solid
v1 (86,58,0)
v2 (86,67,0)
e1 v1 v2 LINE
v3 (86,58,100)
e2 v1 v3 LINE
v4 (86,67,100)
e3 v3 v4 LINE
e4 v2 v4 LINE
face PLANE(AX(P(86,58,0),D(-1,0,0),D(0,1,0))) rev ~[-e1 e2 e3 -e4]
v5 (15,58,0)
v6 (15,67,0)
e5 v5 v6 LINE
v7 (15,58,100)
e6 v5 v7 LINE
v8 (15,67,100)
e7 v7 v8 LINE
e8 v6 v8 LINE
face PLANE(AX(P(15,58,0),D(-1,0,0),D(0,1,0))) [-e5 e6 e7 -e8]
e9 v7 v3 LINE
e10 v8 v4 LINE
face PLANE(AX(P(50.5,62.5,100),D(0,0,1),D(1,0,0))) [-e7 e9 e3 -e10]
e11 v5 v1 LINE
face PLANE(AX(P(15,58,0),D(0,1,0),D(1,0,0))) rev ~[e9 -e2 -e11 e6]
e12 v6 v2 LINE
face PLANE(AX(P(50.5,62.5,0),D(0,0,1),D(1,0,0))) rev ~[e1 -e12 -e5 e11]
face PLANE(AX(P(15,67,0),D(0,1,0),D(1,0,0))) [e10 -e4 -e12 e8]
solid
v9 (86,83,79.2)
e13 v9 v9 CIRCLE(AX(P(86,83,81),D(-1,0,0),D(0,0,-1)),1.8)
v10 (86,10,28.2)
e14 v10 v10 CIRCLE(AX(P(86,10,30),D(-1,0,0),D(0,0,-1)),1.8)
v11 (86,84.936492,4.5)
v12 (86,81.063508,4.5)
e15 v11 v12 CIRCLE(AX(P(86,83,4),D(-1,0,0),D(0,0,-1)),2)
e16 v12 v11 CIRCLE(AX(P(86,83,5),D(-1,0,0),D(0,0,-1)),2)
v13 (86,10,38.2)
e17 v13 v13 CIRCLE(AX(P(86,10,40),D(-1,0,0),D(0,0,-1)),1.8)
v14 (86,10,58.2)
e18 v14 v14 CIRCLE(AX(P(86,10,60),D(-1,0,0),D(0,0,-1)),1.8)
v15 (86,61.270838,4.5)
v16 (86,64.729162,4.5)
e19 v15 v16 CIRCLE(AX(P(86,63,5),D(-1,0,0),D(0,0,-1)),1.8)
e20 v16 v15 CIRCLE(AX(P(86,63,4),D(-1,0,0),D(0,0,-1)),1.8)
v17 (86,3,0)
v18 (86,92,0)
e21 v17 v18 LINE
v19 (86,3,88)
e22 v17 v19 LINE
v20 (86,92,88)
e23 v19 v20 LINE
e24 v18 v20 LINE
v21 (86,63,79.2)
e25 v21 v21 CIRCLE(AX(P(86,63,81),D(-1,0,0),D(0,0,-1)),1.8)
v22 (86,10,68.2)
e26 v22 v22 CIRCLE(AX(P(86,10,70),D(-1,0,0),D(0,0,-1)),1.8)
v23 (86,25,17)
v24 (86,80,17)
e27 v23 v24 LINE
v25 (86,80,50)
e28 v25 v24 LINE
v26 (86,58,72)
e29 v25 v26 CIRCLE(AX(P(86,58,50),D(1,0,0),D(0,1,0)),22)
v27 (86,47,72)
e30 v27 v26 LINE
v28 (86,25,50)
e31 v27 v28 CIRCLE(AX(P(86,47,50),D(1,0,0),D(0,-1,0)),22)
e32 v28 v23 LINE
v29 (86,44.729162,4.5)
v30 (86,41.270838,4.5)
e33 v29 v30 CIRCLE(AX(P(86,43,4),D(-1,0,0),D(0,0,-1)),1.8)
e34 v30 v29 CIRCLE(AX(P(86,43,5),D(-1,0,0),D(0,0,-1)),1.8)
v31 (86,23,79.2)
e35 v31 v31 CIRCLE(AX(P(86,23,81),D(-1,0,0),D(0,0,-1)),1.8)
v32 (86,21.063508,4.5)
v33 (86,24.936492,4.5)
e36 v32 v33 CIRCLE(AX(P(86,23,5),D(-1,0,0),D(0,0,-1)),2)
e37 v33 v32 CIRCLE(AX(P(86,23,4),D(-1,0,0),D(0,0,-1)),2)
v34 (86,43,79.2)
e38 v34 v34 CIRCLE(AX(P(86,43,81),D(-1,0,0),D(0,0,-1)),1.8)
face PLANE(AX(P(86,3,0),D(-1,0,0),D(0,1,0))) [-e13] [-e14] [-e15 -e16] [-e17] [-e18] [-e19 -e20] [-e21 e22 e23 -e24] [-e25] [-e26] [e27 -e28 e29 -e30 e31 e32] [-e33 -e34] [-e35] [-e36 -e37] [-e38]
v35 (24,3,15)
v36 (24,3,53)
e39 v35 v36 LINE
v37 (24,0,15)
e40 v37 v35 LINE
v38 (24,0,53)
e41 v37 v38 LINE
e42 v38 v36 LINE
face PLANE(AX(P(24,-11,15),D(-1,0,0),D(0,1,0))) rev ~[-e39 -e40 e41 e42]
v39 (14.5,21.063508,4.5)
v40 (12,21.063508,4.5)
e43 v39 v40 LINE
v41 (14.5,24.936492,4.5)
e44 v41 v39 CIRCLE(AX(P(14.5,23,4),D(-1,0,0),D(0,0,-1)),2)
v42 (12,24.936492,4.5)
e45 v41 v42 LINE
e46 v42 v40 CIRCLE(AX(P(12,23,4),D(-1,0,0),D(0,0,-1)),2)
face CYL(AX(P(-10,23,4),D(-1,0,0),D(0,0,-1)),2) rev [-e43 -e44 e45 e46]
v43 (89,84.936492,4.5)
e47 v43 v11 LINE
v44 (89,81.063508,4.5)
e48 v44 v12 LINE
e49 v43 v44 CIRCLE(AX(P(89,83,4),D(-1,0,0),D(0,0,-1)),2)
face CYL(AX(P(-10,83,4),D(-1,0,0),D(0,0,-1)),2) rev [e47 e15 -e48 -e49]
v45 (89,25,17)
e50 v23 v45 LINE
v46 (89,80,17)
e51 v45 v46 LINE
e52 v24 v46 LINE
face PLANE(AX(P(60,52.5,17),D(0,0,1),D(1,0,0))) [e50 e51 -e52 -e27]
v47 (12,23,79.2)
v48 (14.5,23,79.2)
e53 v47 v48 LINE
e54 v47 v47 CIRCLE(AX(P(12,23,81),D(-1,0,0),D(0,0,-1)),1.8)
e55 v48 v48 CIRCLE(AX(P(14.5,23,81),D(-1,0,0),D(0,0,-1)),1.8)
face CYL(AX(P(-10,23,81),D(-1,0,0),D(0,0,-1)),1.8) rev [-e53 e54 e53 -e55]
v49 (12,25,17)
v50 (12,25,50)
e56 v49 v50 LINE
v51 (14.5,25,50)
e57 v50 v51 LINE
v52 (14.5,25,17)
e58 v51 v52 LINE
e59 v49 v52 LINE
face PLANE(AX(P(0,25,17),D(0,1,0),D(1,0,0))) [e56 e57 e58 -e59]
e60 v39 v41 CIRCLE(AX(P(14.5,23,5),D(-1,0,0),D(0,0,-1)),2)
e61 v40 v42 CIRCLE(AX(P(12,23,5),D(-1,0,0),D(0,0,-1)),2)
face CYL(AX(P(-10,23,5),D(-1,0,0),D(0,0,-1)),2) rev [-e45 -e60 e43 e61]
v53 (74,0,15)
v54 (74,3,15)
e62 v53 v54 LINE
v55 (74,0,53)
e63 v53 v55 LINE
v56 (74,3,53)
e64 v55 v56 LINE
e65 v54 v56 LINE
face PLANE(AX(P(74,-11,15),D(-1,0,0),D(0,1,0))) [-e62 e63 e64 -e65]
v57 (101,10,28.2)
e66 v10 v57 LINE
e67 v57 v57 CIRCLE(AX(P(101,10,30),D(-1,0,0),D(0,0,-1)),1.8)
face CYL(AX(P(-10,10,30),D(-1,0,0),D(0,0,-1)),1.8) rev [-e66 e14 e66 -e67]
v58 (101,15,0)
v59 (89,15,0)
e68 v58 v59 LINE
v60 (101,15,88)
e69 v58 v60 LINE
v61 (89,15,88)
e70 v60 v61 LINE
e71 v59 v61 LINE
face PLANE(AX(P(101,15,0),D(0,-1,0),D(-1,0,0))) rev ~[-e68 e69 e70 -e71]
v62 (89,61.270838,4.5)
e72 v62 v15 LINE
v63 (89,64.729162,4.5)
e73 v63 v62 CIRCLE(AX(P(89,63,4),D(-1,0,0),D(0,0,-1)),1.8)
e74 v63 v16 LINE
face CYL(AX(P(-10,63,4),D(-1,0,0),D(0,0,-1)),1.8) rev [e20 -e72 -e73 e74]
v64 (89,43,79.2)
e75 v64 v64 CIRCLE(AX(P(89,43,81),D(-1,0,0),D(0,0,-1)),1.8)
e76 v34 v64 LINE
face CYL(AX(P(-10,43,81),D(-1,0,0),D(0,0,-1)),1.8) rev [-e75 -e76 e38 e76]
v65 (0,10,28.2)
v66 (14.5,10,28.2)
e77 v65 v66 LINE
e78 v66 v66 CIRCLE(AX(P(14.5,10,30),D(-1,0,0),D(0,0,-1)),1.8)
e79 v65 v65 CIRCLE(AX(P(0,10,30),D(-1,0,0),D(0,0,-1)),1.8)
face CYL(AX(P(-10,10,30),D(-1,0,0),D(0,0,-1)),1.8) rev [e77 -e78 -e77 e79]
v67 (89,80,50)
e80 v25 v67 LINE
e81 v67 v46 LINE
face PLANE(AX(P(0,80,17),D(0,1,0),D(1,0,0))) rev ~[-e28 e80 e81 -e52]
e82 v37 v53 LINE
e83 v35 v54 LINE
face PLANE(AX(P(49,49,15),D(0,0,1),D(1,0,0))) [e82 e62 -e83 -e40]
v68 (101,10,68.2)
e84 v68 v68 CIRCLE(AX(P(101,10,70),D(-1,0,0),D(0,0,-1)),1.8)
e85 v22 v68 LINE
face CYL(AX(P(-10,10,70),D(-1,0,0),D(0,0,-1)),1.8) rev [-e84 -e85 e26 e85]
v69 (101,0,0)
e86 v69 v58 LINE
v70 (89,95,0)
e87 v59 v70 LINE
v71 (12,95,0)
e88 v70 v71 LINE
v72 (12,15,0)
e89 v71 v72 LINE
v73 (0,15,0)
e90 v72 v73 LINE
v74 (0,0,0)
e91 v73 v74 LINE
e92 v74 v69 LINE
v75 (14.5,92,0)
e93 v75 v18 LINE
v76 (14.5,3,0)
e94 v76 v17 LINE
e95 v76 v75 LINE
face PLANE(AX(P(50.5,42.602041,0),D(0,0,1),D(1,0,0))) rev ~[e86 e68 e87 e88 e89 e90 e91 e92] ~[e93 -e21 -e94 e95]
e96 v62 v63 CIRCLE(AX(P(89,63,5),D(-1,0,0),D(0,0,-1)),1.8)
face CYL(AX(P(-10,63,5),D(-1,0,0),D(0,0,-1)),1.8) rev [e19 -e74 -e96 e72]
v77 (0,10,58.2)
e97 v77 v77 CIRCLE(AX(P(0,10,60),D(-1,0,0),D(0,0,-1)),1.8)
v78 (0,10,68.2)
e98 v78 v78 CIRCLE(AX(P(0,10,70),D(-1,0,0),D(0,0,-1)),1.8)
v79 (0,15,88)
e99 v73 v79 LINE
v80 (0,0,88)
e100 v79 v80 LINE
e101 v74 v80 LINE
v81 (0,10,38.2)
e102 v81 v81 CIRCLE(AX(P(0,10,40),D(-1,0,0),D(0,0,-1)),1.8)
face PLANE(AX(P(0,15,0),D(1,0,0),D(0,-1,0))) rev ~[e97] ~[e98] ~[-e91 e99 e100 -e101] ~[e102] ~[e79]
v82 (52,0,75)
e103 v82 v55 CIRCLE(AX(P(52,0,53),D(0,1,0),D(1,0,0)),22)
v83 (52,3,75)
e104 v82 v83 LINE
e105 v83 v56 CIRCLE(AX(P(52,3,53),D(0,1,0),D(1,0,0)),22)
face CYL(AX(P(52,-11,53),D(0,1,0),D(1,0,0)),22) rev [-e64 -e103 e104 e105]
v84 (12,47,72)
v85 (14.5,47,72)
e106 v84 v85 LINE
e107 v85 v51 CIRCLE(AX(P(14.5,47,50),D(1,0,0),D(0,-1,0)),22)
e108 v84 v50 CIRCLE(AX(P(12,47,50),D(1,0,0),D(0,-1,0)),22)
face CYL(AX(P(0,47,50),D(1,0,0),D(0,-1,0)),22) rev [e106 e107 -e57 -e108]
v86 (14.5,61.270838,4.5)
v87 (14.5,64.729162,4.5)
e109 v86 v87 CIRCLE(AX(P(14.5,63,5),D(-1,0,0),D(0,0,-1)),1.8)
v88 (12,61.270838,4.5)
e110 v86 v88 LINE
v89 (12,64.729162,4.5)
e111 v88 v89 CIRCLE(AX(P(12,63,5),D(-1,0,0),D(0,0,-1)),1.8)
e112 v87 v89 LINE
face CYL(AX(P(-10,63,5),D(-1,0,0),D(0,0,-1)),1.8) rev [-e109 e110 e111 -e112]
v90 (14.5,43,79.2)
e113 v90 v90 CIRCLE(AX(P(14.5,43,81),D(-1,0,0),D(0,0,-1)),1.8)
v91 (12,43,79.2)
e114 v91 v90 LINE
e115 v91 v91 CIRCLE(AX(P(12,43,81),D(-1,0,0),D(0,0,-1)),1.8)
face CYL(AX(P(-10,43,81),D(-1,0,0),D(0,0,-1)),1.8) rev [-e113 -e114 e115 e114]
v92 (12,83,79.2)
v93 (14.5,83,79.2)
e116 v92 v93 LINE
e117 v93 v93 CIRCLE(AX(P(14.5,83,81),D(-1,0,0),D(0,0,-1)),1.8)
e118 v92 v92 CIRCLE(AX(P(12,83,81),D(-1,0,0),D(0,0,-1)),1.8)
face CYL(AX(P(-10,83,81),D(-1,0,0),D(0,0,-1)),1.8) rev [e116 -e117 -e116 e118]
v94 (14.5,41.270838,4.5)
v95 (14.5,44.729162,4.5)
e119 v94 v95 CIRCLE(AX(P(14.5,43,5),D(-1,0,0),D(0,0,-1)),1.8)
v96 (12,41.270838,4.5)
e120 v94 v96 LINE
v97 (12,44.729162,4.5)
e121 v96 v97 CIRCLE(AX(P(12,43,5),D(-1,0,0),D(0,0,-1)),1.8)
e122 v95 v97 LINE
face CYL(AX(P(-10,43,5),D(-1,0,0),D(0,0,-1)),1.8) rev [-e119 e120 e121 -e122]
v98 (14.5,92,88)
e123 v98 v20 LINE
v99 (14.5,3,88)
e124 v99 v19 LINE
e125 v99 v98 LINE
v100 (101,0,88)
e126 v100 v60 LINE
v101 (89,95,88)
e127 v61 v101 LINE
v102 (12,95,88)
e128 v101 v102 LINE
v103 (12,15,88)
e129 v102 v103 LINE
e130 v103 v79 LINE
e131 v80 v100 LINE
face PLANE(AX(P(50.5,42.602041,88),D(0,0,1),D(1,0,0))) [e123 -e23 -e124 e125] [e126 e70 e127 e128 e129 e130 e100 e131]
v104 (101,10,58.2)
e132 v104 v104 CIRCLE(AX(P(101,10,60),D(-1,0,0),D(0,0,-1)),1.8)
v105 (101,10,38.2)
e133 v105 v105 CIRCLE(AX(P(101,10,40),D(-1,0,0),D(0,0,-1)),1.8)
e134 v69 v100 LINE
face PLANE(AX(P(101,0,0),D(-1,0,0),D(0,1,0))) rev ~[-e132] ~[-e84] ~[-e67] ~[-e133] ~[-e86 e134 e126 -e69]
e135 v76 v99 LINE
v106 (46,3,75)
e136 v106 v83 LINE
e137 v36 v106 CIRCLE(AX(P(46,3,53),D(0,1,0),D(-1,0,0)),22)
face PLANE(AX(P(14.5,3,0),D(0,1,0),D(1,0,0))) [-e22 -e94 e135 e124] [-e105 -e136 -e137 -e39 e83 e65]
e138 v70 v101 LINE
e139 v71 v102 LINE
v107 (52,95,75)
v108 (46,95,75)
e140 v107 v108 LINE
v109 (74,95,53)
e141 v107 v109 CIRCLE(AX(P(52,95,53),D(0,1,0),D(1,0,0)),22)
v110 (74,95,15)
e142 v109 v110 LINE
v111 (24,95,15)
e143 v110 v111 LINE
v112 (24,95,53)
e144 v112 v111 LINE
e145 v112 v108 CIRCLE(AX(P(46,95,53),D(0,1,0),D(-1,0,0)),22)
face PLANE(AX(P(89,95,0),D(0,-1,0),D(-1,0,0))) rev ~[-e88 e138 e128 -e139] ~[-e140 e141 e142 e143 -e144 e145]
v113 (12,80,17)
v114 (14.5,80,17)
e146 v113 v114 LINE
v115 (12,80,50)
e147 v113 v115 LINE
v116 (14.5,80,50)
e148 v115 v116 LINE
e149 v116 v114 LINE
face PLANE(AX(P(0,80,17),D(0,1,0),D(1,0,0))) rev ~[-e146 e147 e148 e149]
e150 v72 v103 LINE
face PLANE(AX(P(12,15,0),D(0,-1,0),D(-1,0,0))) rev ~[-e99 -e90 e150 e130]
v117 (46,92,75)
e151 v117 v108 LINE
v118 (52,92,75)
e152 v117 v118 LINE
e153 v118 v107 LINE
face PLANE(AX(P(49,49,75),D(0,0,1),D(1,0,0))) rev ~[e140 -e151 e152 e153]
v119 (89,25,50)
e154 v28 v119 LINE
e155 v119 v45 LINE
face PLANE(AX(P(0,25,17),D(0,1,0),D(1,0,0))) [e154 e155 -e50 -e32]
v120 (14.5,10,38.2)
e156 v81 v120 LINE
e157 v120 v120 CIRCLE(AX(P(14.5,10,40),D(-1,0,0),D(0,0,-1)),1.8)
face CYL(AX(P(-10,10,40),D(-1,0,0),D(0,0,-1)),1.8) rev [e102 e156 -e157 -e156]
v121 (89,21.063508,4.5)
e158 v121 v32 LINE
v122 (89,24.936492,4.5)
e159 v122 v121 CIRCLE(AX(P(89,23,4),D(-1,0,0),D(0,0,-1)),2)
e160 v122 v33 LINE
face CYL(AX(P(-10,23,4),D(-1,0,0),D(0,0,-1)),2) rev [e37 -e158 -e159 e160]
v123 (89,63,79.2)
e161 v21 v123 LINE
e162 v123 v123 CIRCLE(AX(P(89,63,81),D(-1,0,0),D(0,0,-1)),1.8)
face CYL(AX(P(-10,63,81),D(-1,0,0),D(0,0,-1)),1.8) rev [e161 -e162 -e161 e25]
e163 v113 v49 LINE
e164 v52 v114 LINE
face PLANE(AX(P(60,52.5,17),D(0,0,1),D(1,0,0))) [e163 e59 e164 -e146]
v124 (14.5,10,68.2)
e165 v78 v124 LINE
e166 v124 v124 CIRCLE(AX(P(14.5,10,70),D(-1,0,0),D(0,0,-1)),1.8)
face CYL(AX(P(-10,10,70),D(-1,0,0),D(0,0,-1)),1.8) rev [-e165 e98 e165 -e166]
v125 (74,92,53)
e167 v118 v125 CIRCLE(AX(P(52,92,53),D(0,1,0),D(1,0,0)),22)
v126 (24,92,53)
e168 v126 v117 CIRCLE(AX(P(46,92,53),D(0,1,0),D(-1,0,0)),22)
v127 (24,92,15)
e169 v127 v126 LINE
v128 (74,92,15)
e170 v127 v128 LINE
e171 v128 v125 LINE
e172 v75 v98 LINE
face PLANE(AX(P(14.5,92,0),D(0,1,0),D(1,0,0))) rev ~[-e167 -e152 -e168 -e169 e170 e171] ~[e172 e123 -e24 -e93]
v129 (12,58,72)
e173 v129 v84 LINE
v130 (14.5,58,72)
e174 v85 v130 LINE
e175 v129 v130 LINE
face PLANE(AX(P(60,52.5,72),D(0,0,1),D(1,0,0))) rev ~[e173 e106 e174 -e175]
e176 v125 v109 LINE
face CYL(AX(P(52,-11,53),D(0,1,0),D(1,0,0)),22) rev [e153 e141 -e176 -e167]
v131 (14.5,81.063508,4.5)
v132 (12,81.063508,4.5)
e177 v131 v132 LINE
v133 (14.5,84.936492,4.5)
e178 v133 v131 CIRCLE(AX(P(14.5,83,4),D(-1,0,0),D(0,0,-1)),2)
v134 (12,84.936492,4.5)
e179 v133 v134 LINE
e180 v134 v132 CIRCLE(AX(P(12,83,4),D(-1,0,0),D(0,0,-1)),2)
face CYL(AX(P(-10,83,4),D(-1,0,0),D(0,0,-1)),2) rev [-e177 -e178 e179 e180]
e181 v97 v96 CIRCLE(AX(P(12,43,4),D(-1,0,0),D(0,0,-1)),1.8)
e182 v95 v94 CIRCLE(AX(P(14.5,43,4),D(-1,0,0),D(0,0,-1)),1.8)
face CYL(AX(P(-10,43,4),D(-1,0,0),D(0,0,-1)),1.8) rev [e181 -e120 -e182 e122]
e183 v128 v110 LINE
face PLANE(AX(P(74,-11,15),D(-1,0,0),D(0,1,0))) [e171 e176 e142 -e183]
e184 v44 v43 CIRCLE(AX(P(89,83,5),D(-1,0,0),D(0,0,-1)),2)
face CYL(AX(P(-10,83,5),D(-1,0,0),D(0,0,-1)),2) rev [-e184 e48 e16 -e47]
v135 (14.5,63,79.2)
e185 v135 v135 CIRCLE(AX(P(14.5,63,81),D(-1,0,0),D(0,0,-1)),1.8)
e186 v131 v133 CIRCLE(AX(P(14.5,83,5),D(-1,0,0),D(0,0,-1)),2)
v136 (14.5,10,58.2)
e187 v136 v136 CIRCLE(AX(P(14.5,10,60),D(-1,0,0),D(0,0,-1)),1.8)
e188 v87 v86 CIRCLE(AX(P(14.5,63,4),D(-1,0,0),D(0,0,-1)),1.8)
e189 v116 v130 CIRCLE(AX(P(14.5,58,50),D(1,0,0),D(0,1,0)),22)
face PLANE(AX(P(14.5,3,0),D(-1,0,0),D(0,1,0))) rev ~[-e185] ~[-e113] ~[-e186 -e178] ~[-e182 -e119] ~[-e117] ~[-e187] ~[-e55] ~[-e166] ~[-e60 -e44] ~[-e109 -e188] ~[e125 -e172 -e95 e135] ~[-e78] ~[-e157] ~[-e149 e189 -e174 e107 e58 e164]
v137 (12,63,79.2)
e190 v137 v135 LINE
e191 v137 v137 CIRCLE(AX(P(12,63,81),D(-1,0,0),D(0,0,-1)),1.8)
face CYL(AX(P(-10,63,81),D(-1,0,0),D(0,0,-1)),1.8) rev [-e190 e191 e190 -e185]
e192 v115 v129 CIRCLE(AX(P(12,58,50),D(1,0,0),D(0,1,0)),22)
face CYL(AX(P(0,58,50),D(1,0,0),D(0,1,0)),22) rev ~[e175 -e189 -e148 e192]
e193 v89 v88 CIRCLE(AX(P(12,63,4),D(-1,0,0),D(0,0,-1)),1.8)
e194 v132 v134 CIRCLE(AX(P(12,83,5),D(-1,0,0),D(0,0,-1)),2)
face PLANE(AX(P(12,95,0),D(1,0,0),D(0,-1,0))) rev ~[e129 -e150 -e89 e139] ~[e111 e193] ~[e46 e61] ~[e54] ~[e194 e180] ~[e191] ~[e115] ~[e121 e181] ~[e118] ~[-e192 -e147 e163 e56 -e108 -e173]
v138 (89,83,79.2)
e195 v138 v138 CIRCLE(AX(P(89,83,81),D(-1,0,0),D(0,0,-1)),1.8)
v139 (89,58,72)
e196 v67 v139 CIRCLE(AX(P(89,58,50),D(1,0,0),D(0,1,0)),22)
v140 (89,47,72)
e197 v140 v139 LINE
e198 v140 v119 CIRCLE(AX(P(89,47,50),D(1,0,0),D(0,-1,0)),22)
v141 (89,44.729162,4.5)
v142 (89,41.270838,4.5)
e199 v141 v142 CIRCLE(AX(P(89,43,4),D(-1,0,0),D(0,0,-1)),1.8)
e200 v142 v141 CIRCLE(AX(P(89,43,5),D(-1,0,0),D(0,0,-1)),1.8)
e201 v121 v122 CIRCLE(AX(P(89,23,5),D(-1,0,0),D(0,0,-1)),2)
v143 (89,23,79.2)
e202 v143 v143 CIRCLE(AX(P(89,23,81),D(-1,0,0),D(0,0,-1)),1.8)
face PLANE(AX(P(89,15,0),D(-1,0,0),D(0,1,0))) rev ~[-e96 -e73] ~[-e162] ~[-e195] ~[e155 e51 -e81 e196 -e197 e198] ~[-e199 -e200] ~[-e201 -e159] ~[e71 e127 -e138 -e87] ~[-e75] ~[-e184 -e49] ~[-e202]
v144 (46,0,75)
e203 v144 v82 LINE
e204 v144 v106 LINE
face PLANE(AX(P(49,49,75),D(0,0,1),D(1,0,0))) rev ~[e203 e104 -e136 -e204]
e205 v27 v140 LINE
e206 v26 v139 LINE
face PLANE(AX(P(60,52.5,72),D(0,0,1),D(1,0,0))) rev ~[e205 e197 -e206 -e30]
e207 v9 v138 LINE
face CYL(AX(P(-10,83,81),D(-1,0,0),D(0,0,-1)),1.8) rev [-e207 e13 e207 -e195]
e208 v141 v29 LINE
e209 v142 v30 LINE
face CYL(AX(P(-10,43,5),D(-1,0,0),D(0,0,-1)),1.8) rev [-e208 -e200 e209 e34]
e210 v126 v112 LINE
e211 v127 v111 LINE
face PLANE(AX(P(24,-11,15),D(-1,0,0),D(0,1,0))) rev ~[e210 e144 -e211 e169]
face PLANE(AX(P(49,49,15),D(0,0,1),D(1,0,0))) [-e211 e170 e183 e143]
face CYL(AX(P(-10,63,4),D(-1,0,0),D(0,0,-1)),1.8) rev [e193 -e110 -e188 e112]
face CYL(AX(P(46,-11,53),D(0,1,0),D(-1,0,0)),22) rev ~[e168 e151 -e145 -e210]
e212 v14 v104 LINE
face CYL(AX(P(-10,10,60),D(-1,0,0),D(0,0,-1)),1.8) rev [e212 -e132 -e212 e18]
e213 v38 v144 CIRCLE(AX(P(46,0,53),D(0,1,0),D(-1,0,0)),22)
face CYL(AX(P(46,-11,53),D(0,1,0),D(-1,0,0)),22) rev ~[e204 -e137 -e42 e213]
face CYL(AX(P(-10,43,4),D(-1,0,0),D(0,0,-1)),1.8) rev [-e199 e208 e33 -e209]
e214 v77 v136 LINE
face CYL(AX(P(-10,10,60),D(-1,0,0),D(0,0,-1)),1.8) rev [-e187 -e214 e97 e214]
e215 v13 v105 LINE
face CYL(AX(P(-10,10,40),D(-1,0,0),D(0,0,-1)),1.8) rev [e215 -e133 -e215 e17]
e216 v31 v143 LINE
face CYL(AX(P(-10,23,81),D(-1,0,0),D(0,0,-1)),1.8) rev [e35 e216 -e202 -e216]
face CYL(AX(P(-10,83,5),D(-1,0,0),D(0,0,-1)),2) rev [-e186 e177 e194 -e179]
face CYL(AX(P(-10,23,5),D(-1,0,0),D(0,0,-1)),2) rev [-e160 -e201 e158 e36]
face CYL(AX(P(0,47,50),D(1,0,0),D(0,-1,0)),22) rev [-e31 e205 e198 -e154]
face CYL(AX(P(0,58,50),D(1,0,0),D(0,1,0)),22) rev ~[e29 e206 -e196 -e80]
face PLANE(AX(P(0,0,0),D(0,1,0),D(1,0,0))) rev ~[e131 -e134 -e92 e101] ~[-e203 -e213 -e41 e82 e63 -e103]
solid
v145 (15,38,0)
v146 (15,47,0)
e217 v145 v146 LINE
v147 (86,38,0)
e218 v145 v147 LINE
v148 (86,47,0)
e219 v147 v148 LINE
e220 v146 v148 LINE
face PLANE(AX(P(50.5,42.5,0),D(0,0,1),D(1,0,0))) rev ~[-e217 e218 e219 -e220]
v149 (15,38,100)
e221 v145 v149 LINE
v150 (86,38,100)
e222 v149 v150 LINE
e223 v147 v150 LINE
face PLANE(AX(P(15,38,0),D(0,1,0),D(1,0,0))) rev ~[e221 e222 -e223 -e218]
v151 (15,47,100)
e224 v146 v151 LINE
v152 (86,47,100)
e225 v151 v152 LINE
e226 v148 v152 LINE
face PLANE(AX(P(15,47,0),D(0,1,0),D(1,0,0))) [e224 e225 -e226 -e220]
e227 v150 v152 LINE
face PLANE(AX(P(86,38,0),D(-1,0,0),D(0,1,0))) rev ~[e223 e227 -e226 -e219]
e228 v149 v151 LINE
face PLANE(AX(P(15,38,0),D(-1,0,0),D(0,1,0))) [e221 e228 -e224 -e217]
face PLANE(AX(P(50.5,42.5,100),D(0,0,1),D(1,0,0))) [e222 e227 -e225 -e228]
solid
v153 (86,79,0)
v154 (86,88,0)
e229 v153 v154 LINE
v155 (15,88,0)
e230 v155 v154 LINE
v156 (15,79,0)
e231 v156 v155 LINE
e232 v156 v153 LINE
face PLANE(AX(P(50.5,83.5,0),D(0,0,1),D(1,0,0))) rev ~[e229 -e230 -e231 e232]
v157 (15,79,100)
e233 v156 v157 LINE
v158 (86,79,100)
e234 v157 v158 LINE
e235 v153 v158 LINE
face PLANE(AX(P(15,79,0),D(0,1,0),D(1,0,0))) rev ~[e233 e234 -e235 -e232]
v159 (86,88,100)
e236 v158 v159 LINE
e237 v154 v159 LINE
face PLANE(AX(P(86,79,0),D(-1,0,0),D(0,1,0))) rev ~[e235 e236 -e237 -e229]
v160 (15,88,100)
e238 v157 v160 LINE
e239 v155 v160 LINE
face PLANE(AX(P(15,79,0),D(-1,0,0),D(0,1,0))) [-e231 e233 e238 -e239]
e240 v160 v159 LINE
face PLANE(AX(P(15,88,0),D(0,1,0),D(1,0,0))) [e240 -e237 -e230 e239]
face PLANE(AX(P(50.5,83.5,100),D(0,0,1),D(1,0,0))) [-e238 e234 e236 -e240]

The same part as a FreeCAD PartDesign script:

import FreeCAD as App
import Part
import Sketcher
from FreeCAD import Vector


def edges_at(feature, points):
    """Names of the edges that pass closest to the given points."""
    edges = feature.Shape.Edges
    near = lambda p: min(range(len(edges)), key=lambda i: edges[i].distToShape(Part.Vertex(*p))[0])
    return sorted({f"Edge{near(p) + 1}" for p in points})

doc = App.newDocument("Part")
body = doc.addObject("PartDesign::Body", "Body")

# Sketch on XY plane
sketch1 = doc.addObject("Sketcher::SketchObject", "Sketch")
body.addObject(sketch1)
sketch1.AttachmentSupport = (doc.XY_Plane, [""])
sketch1.MapMode = "FlatFace"
sketch1.addGeometry(Part.LineSegment(Vector(15, 47, 0), Vector(15, 38, 0)), False)
sketch1.addGeometry(Part.LineSegment(Vector(15, 38, 0), Vector(86, 38, 0)), False)
sketch1.addGeometry(Part.LineSegment(Vector(86, 38, 0), Vector(86, 47, 0)), False)
sketch1.addGeometry(Part.LineSegment(Vector(86, 47, 0), Vector(15, 47, 0)), False)
sketch1.addConstraint(Sketcher.Constraint("Coincident", 0, 2, 1, 1))
sketch1.addConstraint(Sketcher.Constraint("Coincident", 1, 2, 2, 1))
sketch1.addConstraint(Sketcher.Constraint("Coincident", 2, 2, 3, 1))
sketch1.addConstraint(Sketcher.Constraint("Coincident", 3, 2, 0, 1))
sketch1.addConstraint(Sketcher.Constraint("Vertical", 0))
sketch1.addConstraint(Sketcher.Constraint("Horizontal", 1))
sketch1.addConstraint(Sketcher.Constraint("Vertical", 2))
sketch1.addConstraint(Sketcher.Constraint("Horizontal", 3))
sketch1.addConstraint(Sketcher.Constraint("DistanceX", 1, 1, 1, 2, 71.0))
sketch1.addConstraint(Sketcher.Constraint("DistanceY", 0, 2, 0, 1, 9.0))
sketch1.addConstraint(Sketcher.Constraint("DistanceX", -1, 1, 0, 2, 15.0))
sketch1.addConstraint(Sketcher.Constraint("DistanceY", -1, 1, 0, 2, 38.0))
pad1 = doc.addObject("PartDesign::Pad", "Pad")
body.addObject(pad1)
pad1.Profile = sketch1
pad1.Length = 100
body2 = doc.addObject("PartDesign::Body", "Body001")

# Sketch on XY plane
sketch2 = doc.addObject("Sketcher::SketchObject", "Sketch001")
body2.addObject(sketch2)
sketch2.AttachmentSupport = (doc.getObject("XY_Plane001"), [""])
sketch2.MapMode = "FlatFace"
sketch2.addGeometry(Part.LineSegment(Vector(15, 88, 0), Vector(15, 79, 0)), False)
sketch2.addGeometry(Part.LineSegment(Vector(15, 79, 0), Vector(86, 79, 0)), False)
sketch2.addGeometry(Part.LineSegment(Vector(86, 79, 0), Vector(86, 88, 0)), False)
sketch2.addGeometry(Part.LineSegment(Vector(86, 88, 0), Vector(15, 88, 0)), False)
sketch2.addConstraint(Sketcher.Constraint("Coincident", 0, 2, 1, 1))
sketch2.addConstraint(Sketcher.Constraint("Coincident", 1, 2, 2, 1))
sketch2.addConstraint(Sketcher.Constraint("Coincident", 2, 2, 3, 1))
sketch2.addConstraint(Sketcher.Constraint("Coincident", 3, 2, 0, 1))
sketch2.addConstraint(Sketcher.Constraint("Vertical", 0))
sketch2.addConstraint(Sketcher.Constraint("Horizontal", 1))
sketch2.addConstraint(Sketcher.Constraint("Vertical", 2))
sketch2.addConstraint(Sketcher.Constraint("Horizontal", 3))
sketch2.addConstraint(Sketcher.Constraint("DistanceX", 1, 1, 1, 2, 71.0))
sketch2.addConstraint(Sketcher.Constraint("DistanceY", 0, 2, 0, 1, 9.0))
sketch2.addConstraint(Sketcher.Constraint("DistanceX", -1, 1, 0, 2, 15.0))
sketch2.addConstraint(Sketcher.Constraint("DistanceY", -1, 1, 0, 2, 79.0))
pad2 = doc.addObject("PartDesign::Pad", "Pad001")
body2.addObject(pad2)
pad2.Profile = sketch2
pad2.Length = 100
body3 = doc.addObject("PartDesign::Body", "Body002")

# Sketch on XY plane
sketch3 = doc.addObject("Sketcher::SketchObject", "Sketch002")
body3.addObject(sketch3)
sketch3.AttachmentSupport = (doc.getObject("XY_Plane002"), [""])
sketch3.MapMode = "FlatFace"
sketch3.addGeometry(Part.LineSegment(Vector(15, 67, 0), Vector(15, 58, 0)), False)
sketch3.addGeometry(Part.LineSegment(Vector(15, 58, 0), Vector(86, 58, 0)), False)
sketch3.addGeometry(Part.LineSegment(Vector(86, 58, 0), Vector(86, 67, 0)), False)
sketch3.addGeometry(Part.LineSegment(Vector(86, 67, 0), Vector(15, 67, 0)), False)
sketch3.addConstraint(Sketcher.Constraint("Coincident", 0, 2, 1, 1))
sketch3.addConstraint(Sketcher.Constraint("Coincident", 1, 2, 2, 1))
sketch3.addConstraint(Sketcher.Constraint("Coincident", 2, 2, 3, 1))
sketch3.addConstraint(Sketcher.Constraint("Coincident", 3, 2, 0, 1))
sketch3.addConstraint(Sketcher.Constraint("Vertical", 0))
sketch3.addConstraint(Sketcher.Constraint("Horizontal", 1))
sketch3.addConstraint(Sketcher.Constraint("Vertical", 2))
sketch3.addConstraint(Sketcher.Constraint("Horizontal", 3))
sketch3.addConstraint(Sketcher.Constraint("DistanceX", 1, 1, 1, 2, 71.0))
sketch3.addConstraint(Sketcher.Constraint("DistanceY", 0, 2, 0, 1, 9.0))
sketch3.addConstraint(Sketcher.Constraint("DistanceX", -1, 1, 0, 2, 15.0))
sketch3.addConstraint(Sketcher.Constraint("DistanceY", -1, 1, 0, 2, 58.0))
pad3 = doc.addObject("PartDesign::Pad", "Pad002")
body3.addObject(pad3)
pad3.Profile = sketch3
pad3.Length = 100
body4 = doc.addObject("PartDesign::Body", "Body003")

# Sketch on YZ plane
sketch4 = doc.addObject("Sketcher::SketchObject", "Sketch003")
body4.addObject(sketch4)
sketch4.AttachmentSupport = (doc.getObject("YZ_Plane003"), [""])
sketch4.MapMode = "FlatFace"
sketch4.AttachmentOffset = App.Placement(Vector(0, 0, -10), App.Rotation())
sketch4.addGeometry(Part.Circle(Vector(63, 81, 0), Vector(0, 0, 1), 1.8), False)
sketch4.addConstraint(Sketcher.Constraint("Diameter", 0, 3.6))
sketch4.addConstraint(Sketcher.Constraint("DistanceX", -1, 1, 0, 3, 63.0))
sketch4.addConstraint(Sketcher.Constraint("DistanceY", -1, 1, 0, 3, 81.0))
pad4 = doc.addObject("PartDesign::Pad", "Pad003")
body4.addObject(pad4)
pad4.Profile = sketch4
pad4.Length = 120
body5 = doc.addObject("PartDesign::Body", "Body004")

# Sketch on YZ plane
sketch5 = doc.addObject("Sketcher::SketchObject", "Sketch004")
body5.addObject(sketch5)
sketch5.AttachmentSupport = (doc.getObject("YZ_Plane004"), [""])
sketch5.MapMode = "FlatFace"
sketch5.AttachmentOffset = App.Placement(Vector(0, 0, -10), App.Rotation())
sketch5.addGeometry(Part.Circle(Vector(83, 81, 0), Vector(0, 0, 1), 1.8), False)
sketch5.addConstraint(Sketcher.Constraint("Diameter", 0, 3.6))
sketch5.addConstraint(Sketcher.Constraint("DistanceX", -1, 1, 0, 3, 83.0))
sketch5.addConstraint(Sketcher.Constraint("DistanceY", -1, 1, 0, 3, 81.0))
pad5 = doc.addObject("PartDesign::Pad", "Pad004")
body5.addObject(pad5)
pad5.Profile = sketch5
pad5.Length = 120
body6 = doc.addObject("PartDesign::Body", "Body005")

# Sketch on YZ plane
sketch6 = doc.addObject("Sketcher::SketchObject", "Sketch005")
body6.addObject(sketch6)
sketch6.AttachmentSupport = (doc.getObject("YZ_Plane005"), [""])
sketch6.MapMode = "FlatFace"
sketch6.AttachmentOffset = App.Placement(Vector(0, 0, -10), App.Rotation())
sketch6.addGeometry(Part.Circle(Vector(43, 81, 0), Vector(0, 0, 1), 1.8), False)
sketch6.addConstraint(Sketcher.Constraint("Diameter", 0, 3.6))
sketch6.addConstraint(Sketcher.Constraint("DistanceX", -1, 1, 0, 3, 43.0))
sketch6.addConstraint(Sketcher.Constraint("DistanceY", -1, 1, 0, 3, 81.0))
pad6 = doc.addObject("PartDesign::Pad", "Pad005")
body6.addObject(pad6)
pad6.Profile = sketch6
pad6.Length = 120
body7 = doc.addObject("PartDesign::Body", "Body006")

# Sketch on YZ plane
sketch7 = doc.addObject("Sketcher::SketchObject", "Sketch006")
body7.addObject(sketch7)
sketch7.AttachmentSupport = (doc.getObject("YZ_Plane006"), [""])
sketch7.MapMode = "FlatFace"
sketch7.AttachmentOffset = App.Placement(Vector(0, 0, -10), App.Rotation())
sketch7.addGeometry(Part.Circle(Vector(43, 5, 0), Vector(0, 0, 1), 1.8), False)
sketch7.addConstraint(Sketcher.Constraint("Diameter", 0, 3.6))
sketch7.addConstraint(Sketcher.Constraint("DistanceX", -1, 1, 0, 3, 43.0))
sketch7.addConstraint(Sketcher.Constraint("DistanceY", -1, 1, 0, 3, 5.0))
pad7 = doc.addObject("PartDesign::Pad", "Pad006")
body7.addObject(pad7)
pad7.Profile = sketch7
pad7.Length = 120
body8 = doc.addObject("PartDesign::Body", "Body007")

# Sketch on YZ plane
sketch8 = doc.addObject("Sketcher::SketchObject", "Sketch007")
body8.addObject(sketch8)
sketch8.AttachmentSupport = (doc.getObject("YZ_Plane007"), [""])
sketch8.MapMode = "FlatFace"
sketch8.AttachmentOffset = App.Placement(Vector(0, 0, -10), App.Rotation())
sketch8.addGeometry(Part.Circle(Vector(63, 5, 0), Vector(0, 0, 1), 1.8), False)
sketch8.addConstraint(Sketcher.Constraint("Diameter", 0, 3.6))
sketch8.addConstraint(Sketcher.Constraint("DistanceX", -1, 1, 0, 3, 63.0))
sketch8.addConstraint(Sketcher.Constraint("DistanceY", -1, 1, 0, 3, 5.0))
pad8 = doc.addObject("PartDesign::Pad", "Pad007")
body8.addObject(pad8)
pad8.Profile = sketch8
pad8.Length = 120
body9 = doc.addObject("PartDesign::Body", "Body008")

# Sketch on YZ plane
sketch9 = doc.addObject("Sketcher::SketchObject", "Sketch008")
body9.addObject(sketch9)
sketch9.AttachmentSupport = (doc.getObject("YZ_Plane008"), [""])
sketch9.MapMode = "FlatFace"
sketch9.AttachmentOffset = App.Placement(Vector(0, 0, -10), App.Rotation())
sketch9.addGeometry(Part.Circle(Vector(23, 5, 0), Vector(0, 0, 1), 2), False)
sketch9.addConstraint(Sketcher.Constraint("Diameter", 0, 4.0))
sketch9.addConstraint(Sketcher.Constraint("DistanceX", -1, 1, 0, 3, 23.0))
sketch9.addConstraint(Sketcher.Constraint("DistanceY", -1, 1, 0, 3, 5.0))
pad9 = doc.addObject("PartDesign::Pad", "Pad008")
body9.addObject(pad9)
pad9.Profile = sketch9
pad9.Length = 120
body10 = doc.addObject("PartDesign::Body", "Body009")

# Sketch on YZ plane
sketch10 = doc.addObject("Sketcher::SketchObject", "Sketch009")
body10.addObject(sketch10)
sketch10.AttachmentSupport = (doc.getObject("YZ_Plane009"), [""])
sketch10.MapMode = "FlatFace"
sketch10.AttachmentOffset = App.Placement(Vector(0, 0, -10), App.Rotation())
sketch10.addGeometry(Part.Circle(Vector(23, 81, 0), Vector(0, 0, 1), 1.8), False)
sketch10.addConstraint(Sketcher.Constraint("Diameter", 0, 3.6))
sketch10.addConstraint(Sketcher.Constraint("DistanceX", -1, 1, 0, 3, 23.0))
sketch10.addConstraint(Sketcher.Constraint("DistanceY", -1, 1, 0, 3, 81.0))
pad10 = doc.addObject("PartDesign::Pad", "Pad009")
body10.addObject(pad10)
pad10.Profile = sketch10
pad10.Length = 120
body11 = doc.addObject("PartDesign::Body", "Body010")

# Sketch on YZ plane
sketch11 = doc.addObject("Sketcher::SketchObject", "Sketch010")
body11.addObject(sketch11)
sketch11.AttachmentSupport = (doc.getObject("YZ_Plane010"), [""])
sketch11.MapMode = "FlatFace"
sketch11.AttachmentOffset = App.Placement(Vector(0, 0, -10), App.Rotation())
sketch11.addGeometry(Part.Circle(Vector(83, 4, 0), Vector(0, 0, 1), 2), False)
sketch11.addConstraint(Sketcher.Constraint("Diameter", 0, 4.0))
sketch11.addConstraint(Sketcher.Constraint("DistanceX", -1, 1, 0, 3, 83.0))
sketch11.addConstraint(Sketcher.Constraint("DistanceY", -1, 1, 0, 3, 4.0))
pad11 = doc.addObject("PartDesign::Pad", "Pad010")
body11.addObject(pad11)
pad11.Profile = sketch11
pad11.Length = 120
body12 = doc.addObject("PartDesign::Body", "Body011")

# Sketch on YZ plane
sketch12 = doc.addObject("Sketcher::SketchObject", "Sketch011")
body12.addObject(sketch12)
sketch12.AttachmentSupport = (doc.getObject("YZ_Plane011"), [""])
sketch12.MapMode = "FlatFace"
sketch12.AttachmentOffset = App.Placement(Vector(0, 0, -10), App.Rotation())
sketch12.addGeometry(Part.Circle(Vector(43, 4, 0), Vector(0, 0, 1), 1.8), False)
sketch12.addConstraint(Sketcher.Constraint("Diameter", 0, 3.6))
sketch12.addConstraint(Sketcher.Constraint("DistanceX", -1, 1, 0, 3, 43.0))
sketch12.addConstraint(Sketcher.Constraint("DistanceY", -1, 1, 0, 3, 4.0))
pad12 = doc.addObject("PartDesign::Pad", "Pad011")
body12.addObject(pad12)
pad12.Profile = sketch12
pad12.Length = 120
body13 = doc.addObject("PartDesign::Body", "Body012")

# Sketch on YZ plane
sketch13 = doc.addObject("Sketcher::SketchObject", "Sketch012")
body13.addObject(sketch13)
sketch13.AttachmentSupport = (doc.getObject("YZ_Plane012"), [""])
sketch13.MapMode = "FlatFace"
sketch13.AttachmentOffset = App.Placement(Vector(0, 0, -10), App.Rotation())
sketch13.addGeometry(Part.Circle(Vector(63, 4, 0), Vector(0, 0, 1), 1.8), False)
sketch13.addConstraint(Sketcher.Constraint("Diameter", 0, 3.6))
sketch13.addConstraint(Sketcher.Constraint("DistanceX", -1, 1, 0, 3, 63.0))
sketch13.addConstraint(Sketcher.Constraint("DistanceY", -1, 1, 0, 3, 4.0))
pad13 = doc.addObject("PartDesign::Pad", "Pad012")
body13.addObject(pad13)
pad13.Profile = sketch13
pad13.Length = 120
body14 = doc.addObject("PartDesign::Body", "Body013")

# Sketch on YZ plane
sketch14 = doc.addObject("Sketcher::SketchObject", "Sketch013")
body14.addObject(sketch14)
sketch14.AttachmentSupport = (doc.getObject("YZ_Plane013"), [""])
sketch14.MapMode = "FlatFace"
sketch14.AttachmentOffset = App.Placement(Vector(0, 0, -10), App.Rotation())
sketch14.addGeometry(Part.Circle(Vector(23, 4, 0), Vector(0, 0, 1), 2), False)
sketch14.addConstraint(Sketcher.Constraint("Diameter", 0, 4.0))
sketch14.addConstraint(Sketcher.Constraint("DistanceX", -1, 1, 0, 3, 23.0))
sketch14.addConstraint(Sketcher.Constraint("DistanceY", -1, 1, 0, 3, 4.0))
pad14 = doc.addObject("PartDesign::Pad", "Pad013")
body14.addObject(pad14)
pad14.Profile = sketch14
pad14.Length = 120
body15 = doc.addObject("PartDesign::Body", "Body014")
body15.AllowCompound = True

# Sketch on YZ plane
sketch15 = doc.addObject("Sketcher::SketchObject", "Sketch014")
body15.addObject(sketch15)
sketch15.AttachmentSupport = (doc.getObject("YZ_Plane014"), [""])
sketch15.MapMode = "FlatFace"
sketch15.AttachmentOffset = App.Placement(Vector(0, 0, -10), App.Rotation())
sketch15.addGeometry(Part.Circle(Vector(83, 5, 0), Vector(0, 0, 1), 2), False)
sketch15.addConstraint(Sketcher.Constraint("Diameter", 0, 4.0))
sketch15.addConstraint(Sketcher.Constraint("DistanceX", -1, 1, 0, 3, 83.0))
sketch15.addConstraint(Sketcher.Constraint("DistanceY", -1, 1, 0, 3, 5.0))
pad15 = doc.addObject("PartDesign::Pad", "Pad014")
body15.addObject(pad15)
pad15.Profile = sketch15
pad15.Length = 120
doc.recompute()

boolean = doc.addObject("PartDesign::Boolean", "Boolean")
body15.addObject(boolean)
boolean.Type = "Fuse"
boolean.addObjects([body4])
doc.recompute()

boolean2 = doc.addObject("PartDesign::Boolean", "Boolean001")
body15.addObject(boolean2)
boolean2.Type = "Fuse"
boolean2.addObjects([body5])
doc.recompute()

boolean3 = doc.addObject("PartDesign::Boolean", "Boolean002")
body15.addObject(boolean3)
boolean3.Type = "Fuse"
boolean3.addObjects([body6])
doc.recompute()

boolean4 = doc.addObject("PartDesign::Boolean", "Boolean003")
body15.addObject(boolean4)
boolean4.Type = "Fuse"
boolean4.addObjects([body7])
doc.recompute()

boolean5 = doc.addObject("PartDesign::Boolean", "Boolean004")
body15.addObject(boolean5)
boolean5.Type = "Fuse"
boolean5.addObjects([body8])
doc.recompute()

boolean6 = doc.addObject("PartDesign::Boolean", "Boolean005")
body15.addObject(boolean6)
boolean6.Type = "Fuse"
boolean6.addObjects([body9])
doc.recompute()

boolean7 = doc.addObject("PartDesign::Boolean", "Boolean006")
body15.addObject(boolean7)
boolean7.Type = "Fuse"
boolean7.addObjects([body10])
doc.recompute()

boolean8 = doc.addObject("PartDesign::Boolean", "Boolean007")
body15.addObject(boolean8)
boolean8.Type = "Fuse"
boolean8.addObjects([body11])
doc.recompute()

boolean9 = doc.addObject("PartDesign::Boolean", "Boolean008")
body15.addObject(boolean9)
boolean9.Type = "Fuse"
boolean9.addObjects([body12])
doc.recompute()

boolean10 = doc.addObject("PartDesign::Boolean", "Boolean009")
body15.addObject(boolean10)
boolean10.Type = "Fuse"
boolean10.addObjects([body13])
doc.recompute()

boolean11 = doc.addObject("PartDesign::Boolean", "Boolean010")
body15.addObject(boolean11)
boolean11.Type = "Fuse"
boolean11.addObjects([body14])
body16 = doc.addObject("PartDesign::Body", "Body015")

# Sketch on XY plane
sketch16 = doc.addObject("Sketcher::SketchObject", "Sketch015")
body16.addObject(sketch16)
sketch16.AttachmentSupport = (doc.getObject("XY_Plane015"), [""])
sketch16.MapMode = "FlatFace"
sketch16.AttachmentOffset = App.Placement(Vector(0, 0, 15), App.Rotation())
sketch16.addGeometry(Part.LineSegment(Vector(24, 109, 0), Vector(24, -11, 0)), False)
sketch16.addGeometry(Part.LineSegment(Vector(24, -11, 0), Vector(74, -11, 0)), False)
sketch16.addGeometry(Part.LineSegment(Vector(74, -11, 0), Vector(74, 109, 0)), False)
sketch16.addGeometry(Part.LineSegment(Vector(74, 109, 0), Vector(24, 109, 0)), False)
sketch16.addConstraint(Sketcher.Constraint("Coincident", 0, 2, 1, 1))
sketch16.addConstraint(Sketcher.Constraint("Coincident", 1, 2, 2, 1))
sketch16.addConstraint(Sketcher.Constraint("Coincident", 2, 2, 3, 1))
sketch16.addConstraint(Sketcher.Constraint("Coincident", 3, 2, 0, 1))
sketch16.addConstraint(Sketcher.Constraint("Vertical", 0))
sketch16.addConstraint(Sketcher.Constraint("Horizontal", 1))
sketch16.addConstraint(Sketcher.Constraint("Vertical", 2))
sketch16.addConstraint(Sketcher.Constraint("Horizontal", 3))
sketch16.addConstraint(Sketcher.Constraint("DistanceX", 1, 1, 1, 2, 50.0))
sketch16.addConstraint(Sketcher.Constraint("DistanceY", 0, 2, 0, 1, 120.0))
sketch16.addConstraint(Sketcher.Constraint("DistanceX", -1, 1, 0, 2, 24.0))
sketch16.addConstraint(Sketcher.Constraint("DistanceY", 0, 2, -1, 1, 11.0))
pad16 = doc.addObject("PartDesign::Pad", "Pad015")
body16.addObject(pad16)
pad16.Profile = sketch16
pad16.Length = 60
doc.recompute()

fillet = doc.addObject("PartDesign::Fillet", "Fillet")
body16.addObject(fillet)
fillet.Base = (pad16, edges_at(pad16, [(24, 49, 75), (74, 49, 75)]))
fillet.Radius = 22
body17 = doc.addObject("PartDesign::Body", "Body016")

# Sketch on XY plane
sketch17 = doc.addObject("Sketcher::SketchObject", "Sketch016")
body17.addObject(sketch17)
sketch17.AttachmentSupport = (doc.getObject("XY_Plane016"), [""])
sketch17.MapMode = "FlatFace"
sketch17.AttachmentOffset = App.Placement(Vector(0, 0, 17), App.Rotation())
sketch17.addGeometry(Part.LineSegment(Vector(0, 80, 0), Vector(0, 25, 0)), False)
sketch17.addGeometry(Part.LineSegment(Vector(0, 25, 0), Vector(120, 25, 0)), False)
sketch17.addGeometry(Part.LineSegment(Vector(120, 25, 0), Vector(120, 80, 0)), False)
sketch17.addGeometry(Part.LineSegment(Vector(120, 80, 0), Vector(0, 80, 0)), False)
sketch17.addConstraint(Sketcher.Constraint("Coincident", 0, 2, 1, 1))
sketch17.addConstraint(Sketcher.Constraint("Coincident", 1, 2, 2, 1))
sketch17.addConstraint(Sketcher.Constraint("Coincident", 2, 2, 3, 1))
sketch17.addConstraint(Sketcher.Constraint("Coincident", 3, 2, 0, 1))
sketch17.addConstraint(Sketcher.Constraint("Vertical", 0))
sketch17.addConstraint(Sketcher.Constraint("Horizontal", 1))
sketch17.addConstraint(Sketcher.Constraint("Vertical", 2))
sketch17.addConstraint(Sketcher.Constraint("Horizontal", 3))
sketch17.addConstraint(Sketcher.Constraint("PointOnObject", 0, 2, -2))
sketch17.addConstraint(Sketcher.Constraint("DistanceX", 1, 1, 1, 2, 120.0))
sketch17.addConstraint(Sketcher.Constraint("DistanceY", 0, 2, 0, 1, 55.0))
sketch17.addConstraint(Sketcher.Constraint("DistanceY", -1, 1, 0, 2, 25.0))
pad17 = doc.addObject("PartDesign::Pad", "Pad016")
body17.addObject(pad17)
pad17.Profile = sketch17
pad17.Length = 55
doc.recompute()

fillet2 = doc.addObject("PartDesign::Fillet", "Fillet001")
body17.addObject(fillet2)
fillet2.Base = (pad17, edges_at(pad17, [(60, 25, 72), (60, 80, 72)]))
fillet2.Radius = 22
body18 = doc.addObject("PartDesign::Body", "Body017")

# Sketch on YZ plane
sketch18 = doc.addObject("Sketcher::SketchObject", "Sketch017")
body18.addObject(sketch18)
sketch18.AttachmentSupport = (doc.getObject("YZ_Plane017"), [""])
sketch18.MapMode = "FlatFace"
sketch18.AttachmentOffset = App.Placement(Vector(0, 0, -10), App.Rotation())
sketch18.addGeometry(Part.Circle(Vector(10, 40, 0), Vector(0, 0, 1), 1.8), False)
sketch18.addConstraint(Sketcher.Constraint("Diameter", 0, 3.6))
sketch18.addConstraint(Sketcher.Constraint("DistanceX", -1, 1, 0, 3, 10.0))
sketch18.addConstraint(Sketcher.Constraint("DistanceY", -1, 1, 0, 3, 40.0))
pad18 = doc.addObject("PartDesign::Pad", "Pad017")
body18.addObject(pad18)
pad18.Profile = sketch18
pad18.Length = 120
body19 = doc.addObject("PartDesign::Body", "Body018")

# Sketch on YZ plane
sketch19 = doc.addObject("Sketcher::SketchObject", "Sketch018")
body19.addObject(sketch19)
sketch19.AttachmentSupport = (doc.getObject("YZ_Plane018"), [""])
sketch19.MapMode = "FlatFace"
sketch19.AttachmentOffset = App.Placement(Vector(0, 0, -10), App.Rotation())
sketch19.addGeometry(Part.Circle(Vector(10, 30, 0), Vector(0, 0, 1), 1.8), False)
sketch19.addConstraint(Sketcher.Constraint("Diameter", 0, 3.6))
sketch19.addConstraint(Sketcher.Constraint("DistanceX", -1, 1, 0, 3, 10.0))
sketch19.addConstraint(Sketcher.Constraint("DistanceY", -1, 1, 0, 3, 30.0))
pad19 = doc.addObject("PartDesign::Pad", "Pad018")
body19.addObject(pad19)
pad19.Profile = sketch19
pad19.Length = 120
body20 = doc.addObject("PartDesign::Body", "Body019")

# Sketch on YZ plane
sketch20 = doc.addObject("Sketcher::SketchObject", "Sketch019")
body20.addObject(sketch20)
sketch20.AttachmentSupport = (doc.getObject("YZ_Plane019"), [""])
sketch20.MapMode = "FlatFace"
sketch20.AttachmentOffset = App.Placement(Vector(0, 0, -10), App.Rotation())
sketch20.addGeometry(Part.Circle(Vector(10, 70, 0), Vector(0, 0, 1), 1.8), False)
sketch20.addConstraint(Sketcher.Constraint("Diameter", 0, 3.6))
sketch20.addConstraint(Sketcher.Constraint("DistanceX", -1, 1, 0, 3, 10.0))
sketch20.addConstraint(Sketcher.Constraint("DistanceY", -1, 1, 0, 3, 70.0))
pad20 = doc.addObject("PartDesign::Pad", "Pad019")
body20.addObject(pad20)
pad20.Profile = sketch20
pad20.Length = 120
body21 = doc.addObject("PartDesign::Body", "Body020")
body21.AllowCompound = True

# Sketch on YZ plane
sketch21 = doc.addObject("Sketcher::SketchObject", "Sketch020")
body21.addObject(sketch21)
sketch21.AttachmentSupport = (doc.getObject("YZ_Plane020"), [""])
sketch21.MapMode = "FlatFace"
sketch21.AttachmentOffset = App.Placement(Vector(0, 0, -10), App.Rotation())
sketch21.addGeometry(Part.Circle(Vector(10, 60, 0), Vector(0, 0, 1), 1.8), False)
sketch21.addConstraint(Sketcher.Constraint("Diameter", 0, 3.6))
sketch21.addConstraint(Sketcher.Constraint("DistanceX", -1, 1, 0, 3, 10.0))
sketch21.addConstraint(Sketcher.Constraint("DistanceY", -1, 1, 0, 3, 60.0))
pad21 = doc.addObject("PartDesign::Pad", "Pad020")
body21.addObject(pad21)
pad21.Profile = sketch21
pad21.Length = 120
doc.recompute()

boolean12 = doc.addObject("PartDesign::Boolean", "Boolean011")
body21.addObject(boolean12)
boolean12.Type = "Fuse"
boolean12.addObjects([body18])
doc.recompute()

boolean13 = doc.addObject("PartDesign::Boolean", "Boolean012")
body21.addObject(boolean13)
boolean13.Type = "Fuse"
boolean13.addObjects([body19])
doc.recompute()

boolean14 = doc.addObject("PartDesign::Boolean", "Boolean013")
body21.addObject(boolean14)
boolean14.Type = "Fuse"
boolean14.addObjects([body20])
doc.recompute()

boolean15 = doc.addObject("PartDesign::Boolean", "Boolean014")
body21.addObject(boolean15)
boolean15.Type = "Fuse"
boolean15.addObjects([body15])
doc.recompute()

boolean16 = doc.addObject("PartDesign::Boolean", "Boolean015")
body21.addObject(boolean16)
boolean16.Type = "Fuse"
boolean16.addObjects([body16])
doc.recompute()

boolean17 = doc.addObject("PartDesign::Boolean", "Boolean016")
body21.addObject(boolean17)
boolean17.Type = "Fuse"
boolean17.addObjects([body17])
body22 = doc.addObject("PartDesign::Body", "Body021")

# Sketch on XY plane
sketch22 = doc.addObject("Sketcher::SketchObject", "Sketch021")
body22.addObject(sketch22)
sketch22.AttachmentSupport = (doc.getObject("XY_Plane021"), [""])
sketch22.MapMode = "FlatFace"
sketch22.addGeometry(Part.LineSegment(Vector(0, 0, 0), Vector(101, 0, 0)), False)
sketch22.addGeometry(Part.LineSegment(Vector(101, 0, 0), Vector(101, 15, 0)), False)
sketch22.addGeometry(Part.LineSegment(Vector(101, 15, 0), Vector(89, 15, 0)), False)
sketch22.addGeometry(Part.LineSegment(Vector(89, 15, 0), Vector(89, 95, 0)), False)
sketch22.addGeometry(Part.LineSegment(Vector(89, 95, 0), Vector(12, 95, 0)), False)
sketch22.addGeometry(Part.LineSegment(Vector(12, 95, 0), Vector(12, 15, 0)), False)
sketch22.addGeometry(Part.LineSegment(Vector(12, 15, 0), Vector(0, 15, 0)), False)
sketch22.addGeometry(Part.LineSegment(Vector(0, 15, 0), Vector(0, 0, 0)), False)
sketch22.addGeometry(Part.LineSegment(Vector(86, 3, 0), Vector(14, 3, 0)), False)
sketch22.addGeometry(Part.LineSegment(Vector(14, 3, 0), Vector(14, 92, 0)), False)
sketch22.addGeometry(Part.LineSegment(Vector(14, 92, 0), Vector(86, 92, 0)), False)
sketch22.addGeometry(Part.LineSegment(Vector(86, 92, 0), Vector(86, 3, 0)), False)
sketch22.addConstraint(Sketcher.Constraint("Coincident", 0, 2, 1, 1))
sketch22.addConstraint(Sketcher.Constraint("Coincident", 1, 2, 2, 1))
sketch22.addConstraint(Sketcher.Constraint("Coincident", 2, 2, 3, 1))
sketch22.addConstraint(Sketcher.Constraint("Coincident", 3, 2, 4, 1))
sketch22.addConstraint(Sketcher.Constraint("Coincident", 4, 2, 5, 1))
sketch22.addConstraint(Sketcher.Constraint("Coincident", 5, 2, 6, 1))
sketch22.addConstraint(Sketcher.Constraint("Coincident", 6, 2, 7, 1))
sketch22.addConstraint(Sketcher.Constraint("Coincident", 7, 2, 0, 1))
sketch22.addConstraint(Sketcher.Constraint("Coincident", 8, 2, 9, 1))
sketch22.addConstraint(Sketcher.Constraint("Coincident", 9, 2, 10, 1))
sketch22.addConstraint(Sketcher.Constraint("Coincident", 10, 2, 11, 1))
sketch22.addConstraint(Sketcher.Constraint("Coincident", 11, 2, 8, 1))
sketch22.addConstraint(Sketcher.Constraint("Horizontal", 0))
sketch22.addConstraint(Sketcher.Constraint("Vertical", 1))
sketch22.addConstraint(Sketcher.Constraint("Horizontal", 2))
sketch22.addConstraint(Sketcher.Constraint("Vertical", 3))
sketch22.addConstraint(Sketcher.Constraint("Horizontal", 4))
sketch22.addConstraint(Sketcher.Constraint("Vertical", 5))
sketch22.addConstraint(Sketcher.Constraint("Horizontal", 6))
sketch22.addConstraint(Sketcher.Constraint("Vertical", 7))
sketch22.addConstraint(Sketcher.Constraint("Horizontal", 8))
sketch22.addConstraint(Sketcher.Constraint("Vertical", 9))
sketch22.addConstraint(Sketcher.Constraint("Horizontal", 10))
sketch22.addConstraint(Sketcher.Constraint("Vertical", 11))
sketch22.addConstraint(Sketcher.Constraint("Coincident", 7, 2, -1, 1))
sketch22.addConstraint(Sketcher.Constraint("Horizontal", 2, 2, 5, 2))
sketch22.addConstraint(Sketcher.Constraint("Equal", 2, 6))
sketch22.addConstraint(Sketcher.Constraint("DistanceX", 0, 1, 0, 2, 101.0))
sketch22.addConstraint(Sketcher.Constraint("DistanceX", 2, 2, 2, 1, 12.0))
sketch22.addConstraint(Sketcher.Constraint("DistanceY", 1, 1, 1, 2, 15.0))
sketch22.addConstraint(Sketcher.Constraint("DistanceY", 3, 1, 3, 2, 80.0))
sketch22.addConstraint(Sketcher.Constraint("DistanceY", 9, 1, 9, 2, 89.0))
sketch22.addConstraint(Sketcher.Constraint("DistanceX", 8, 2, 8, 1, 71.5))
sketch22.addConstraint(Sketcher.Constraint("DistanceY", -1, 1, 8, 2, 3.0))
sketch22.addConstraint(Sketcher.Constraint("DistanceX", -1, 1, 10, 2, 86.0))
pad22 = doc.addObject("PartDesign::Pad", "Pad021")
body22.addObject(pad22)
pad22.Profile = sketch22
pad22.Length = 88
doc.recompute()

boolean18 = doc.addObject("PartDesign::Boolean", "Boolean017")
body22.addObject(boolean18)
boolean18.Type = "Cut"
boolean18.addObjects([body21])

doc.recompute()
